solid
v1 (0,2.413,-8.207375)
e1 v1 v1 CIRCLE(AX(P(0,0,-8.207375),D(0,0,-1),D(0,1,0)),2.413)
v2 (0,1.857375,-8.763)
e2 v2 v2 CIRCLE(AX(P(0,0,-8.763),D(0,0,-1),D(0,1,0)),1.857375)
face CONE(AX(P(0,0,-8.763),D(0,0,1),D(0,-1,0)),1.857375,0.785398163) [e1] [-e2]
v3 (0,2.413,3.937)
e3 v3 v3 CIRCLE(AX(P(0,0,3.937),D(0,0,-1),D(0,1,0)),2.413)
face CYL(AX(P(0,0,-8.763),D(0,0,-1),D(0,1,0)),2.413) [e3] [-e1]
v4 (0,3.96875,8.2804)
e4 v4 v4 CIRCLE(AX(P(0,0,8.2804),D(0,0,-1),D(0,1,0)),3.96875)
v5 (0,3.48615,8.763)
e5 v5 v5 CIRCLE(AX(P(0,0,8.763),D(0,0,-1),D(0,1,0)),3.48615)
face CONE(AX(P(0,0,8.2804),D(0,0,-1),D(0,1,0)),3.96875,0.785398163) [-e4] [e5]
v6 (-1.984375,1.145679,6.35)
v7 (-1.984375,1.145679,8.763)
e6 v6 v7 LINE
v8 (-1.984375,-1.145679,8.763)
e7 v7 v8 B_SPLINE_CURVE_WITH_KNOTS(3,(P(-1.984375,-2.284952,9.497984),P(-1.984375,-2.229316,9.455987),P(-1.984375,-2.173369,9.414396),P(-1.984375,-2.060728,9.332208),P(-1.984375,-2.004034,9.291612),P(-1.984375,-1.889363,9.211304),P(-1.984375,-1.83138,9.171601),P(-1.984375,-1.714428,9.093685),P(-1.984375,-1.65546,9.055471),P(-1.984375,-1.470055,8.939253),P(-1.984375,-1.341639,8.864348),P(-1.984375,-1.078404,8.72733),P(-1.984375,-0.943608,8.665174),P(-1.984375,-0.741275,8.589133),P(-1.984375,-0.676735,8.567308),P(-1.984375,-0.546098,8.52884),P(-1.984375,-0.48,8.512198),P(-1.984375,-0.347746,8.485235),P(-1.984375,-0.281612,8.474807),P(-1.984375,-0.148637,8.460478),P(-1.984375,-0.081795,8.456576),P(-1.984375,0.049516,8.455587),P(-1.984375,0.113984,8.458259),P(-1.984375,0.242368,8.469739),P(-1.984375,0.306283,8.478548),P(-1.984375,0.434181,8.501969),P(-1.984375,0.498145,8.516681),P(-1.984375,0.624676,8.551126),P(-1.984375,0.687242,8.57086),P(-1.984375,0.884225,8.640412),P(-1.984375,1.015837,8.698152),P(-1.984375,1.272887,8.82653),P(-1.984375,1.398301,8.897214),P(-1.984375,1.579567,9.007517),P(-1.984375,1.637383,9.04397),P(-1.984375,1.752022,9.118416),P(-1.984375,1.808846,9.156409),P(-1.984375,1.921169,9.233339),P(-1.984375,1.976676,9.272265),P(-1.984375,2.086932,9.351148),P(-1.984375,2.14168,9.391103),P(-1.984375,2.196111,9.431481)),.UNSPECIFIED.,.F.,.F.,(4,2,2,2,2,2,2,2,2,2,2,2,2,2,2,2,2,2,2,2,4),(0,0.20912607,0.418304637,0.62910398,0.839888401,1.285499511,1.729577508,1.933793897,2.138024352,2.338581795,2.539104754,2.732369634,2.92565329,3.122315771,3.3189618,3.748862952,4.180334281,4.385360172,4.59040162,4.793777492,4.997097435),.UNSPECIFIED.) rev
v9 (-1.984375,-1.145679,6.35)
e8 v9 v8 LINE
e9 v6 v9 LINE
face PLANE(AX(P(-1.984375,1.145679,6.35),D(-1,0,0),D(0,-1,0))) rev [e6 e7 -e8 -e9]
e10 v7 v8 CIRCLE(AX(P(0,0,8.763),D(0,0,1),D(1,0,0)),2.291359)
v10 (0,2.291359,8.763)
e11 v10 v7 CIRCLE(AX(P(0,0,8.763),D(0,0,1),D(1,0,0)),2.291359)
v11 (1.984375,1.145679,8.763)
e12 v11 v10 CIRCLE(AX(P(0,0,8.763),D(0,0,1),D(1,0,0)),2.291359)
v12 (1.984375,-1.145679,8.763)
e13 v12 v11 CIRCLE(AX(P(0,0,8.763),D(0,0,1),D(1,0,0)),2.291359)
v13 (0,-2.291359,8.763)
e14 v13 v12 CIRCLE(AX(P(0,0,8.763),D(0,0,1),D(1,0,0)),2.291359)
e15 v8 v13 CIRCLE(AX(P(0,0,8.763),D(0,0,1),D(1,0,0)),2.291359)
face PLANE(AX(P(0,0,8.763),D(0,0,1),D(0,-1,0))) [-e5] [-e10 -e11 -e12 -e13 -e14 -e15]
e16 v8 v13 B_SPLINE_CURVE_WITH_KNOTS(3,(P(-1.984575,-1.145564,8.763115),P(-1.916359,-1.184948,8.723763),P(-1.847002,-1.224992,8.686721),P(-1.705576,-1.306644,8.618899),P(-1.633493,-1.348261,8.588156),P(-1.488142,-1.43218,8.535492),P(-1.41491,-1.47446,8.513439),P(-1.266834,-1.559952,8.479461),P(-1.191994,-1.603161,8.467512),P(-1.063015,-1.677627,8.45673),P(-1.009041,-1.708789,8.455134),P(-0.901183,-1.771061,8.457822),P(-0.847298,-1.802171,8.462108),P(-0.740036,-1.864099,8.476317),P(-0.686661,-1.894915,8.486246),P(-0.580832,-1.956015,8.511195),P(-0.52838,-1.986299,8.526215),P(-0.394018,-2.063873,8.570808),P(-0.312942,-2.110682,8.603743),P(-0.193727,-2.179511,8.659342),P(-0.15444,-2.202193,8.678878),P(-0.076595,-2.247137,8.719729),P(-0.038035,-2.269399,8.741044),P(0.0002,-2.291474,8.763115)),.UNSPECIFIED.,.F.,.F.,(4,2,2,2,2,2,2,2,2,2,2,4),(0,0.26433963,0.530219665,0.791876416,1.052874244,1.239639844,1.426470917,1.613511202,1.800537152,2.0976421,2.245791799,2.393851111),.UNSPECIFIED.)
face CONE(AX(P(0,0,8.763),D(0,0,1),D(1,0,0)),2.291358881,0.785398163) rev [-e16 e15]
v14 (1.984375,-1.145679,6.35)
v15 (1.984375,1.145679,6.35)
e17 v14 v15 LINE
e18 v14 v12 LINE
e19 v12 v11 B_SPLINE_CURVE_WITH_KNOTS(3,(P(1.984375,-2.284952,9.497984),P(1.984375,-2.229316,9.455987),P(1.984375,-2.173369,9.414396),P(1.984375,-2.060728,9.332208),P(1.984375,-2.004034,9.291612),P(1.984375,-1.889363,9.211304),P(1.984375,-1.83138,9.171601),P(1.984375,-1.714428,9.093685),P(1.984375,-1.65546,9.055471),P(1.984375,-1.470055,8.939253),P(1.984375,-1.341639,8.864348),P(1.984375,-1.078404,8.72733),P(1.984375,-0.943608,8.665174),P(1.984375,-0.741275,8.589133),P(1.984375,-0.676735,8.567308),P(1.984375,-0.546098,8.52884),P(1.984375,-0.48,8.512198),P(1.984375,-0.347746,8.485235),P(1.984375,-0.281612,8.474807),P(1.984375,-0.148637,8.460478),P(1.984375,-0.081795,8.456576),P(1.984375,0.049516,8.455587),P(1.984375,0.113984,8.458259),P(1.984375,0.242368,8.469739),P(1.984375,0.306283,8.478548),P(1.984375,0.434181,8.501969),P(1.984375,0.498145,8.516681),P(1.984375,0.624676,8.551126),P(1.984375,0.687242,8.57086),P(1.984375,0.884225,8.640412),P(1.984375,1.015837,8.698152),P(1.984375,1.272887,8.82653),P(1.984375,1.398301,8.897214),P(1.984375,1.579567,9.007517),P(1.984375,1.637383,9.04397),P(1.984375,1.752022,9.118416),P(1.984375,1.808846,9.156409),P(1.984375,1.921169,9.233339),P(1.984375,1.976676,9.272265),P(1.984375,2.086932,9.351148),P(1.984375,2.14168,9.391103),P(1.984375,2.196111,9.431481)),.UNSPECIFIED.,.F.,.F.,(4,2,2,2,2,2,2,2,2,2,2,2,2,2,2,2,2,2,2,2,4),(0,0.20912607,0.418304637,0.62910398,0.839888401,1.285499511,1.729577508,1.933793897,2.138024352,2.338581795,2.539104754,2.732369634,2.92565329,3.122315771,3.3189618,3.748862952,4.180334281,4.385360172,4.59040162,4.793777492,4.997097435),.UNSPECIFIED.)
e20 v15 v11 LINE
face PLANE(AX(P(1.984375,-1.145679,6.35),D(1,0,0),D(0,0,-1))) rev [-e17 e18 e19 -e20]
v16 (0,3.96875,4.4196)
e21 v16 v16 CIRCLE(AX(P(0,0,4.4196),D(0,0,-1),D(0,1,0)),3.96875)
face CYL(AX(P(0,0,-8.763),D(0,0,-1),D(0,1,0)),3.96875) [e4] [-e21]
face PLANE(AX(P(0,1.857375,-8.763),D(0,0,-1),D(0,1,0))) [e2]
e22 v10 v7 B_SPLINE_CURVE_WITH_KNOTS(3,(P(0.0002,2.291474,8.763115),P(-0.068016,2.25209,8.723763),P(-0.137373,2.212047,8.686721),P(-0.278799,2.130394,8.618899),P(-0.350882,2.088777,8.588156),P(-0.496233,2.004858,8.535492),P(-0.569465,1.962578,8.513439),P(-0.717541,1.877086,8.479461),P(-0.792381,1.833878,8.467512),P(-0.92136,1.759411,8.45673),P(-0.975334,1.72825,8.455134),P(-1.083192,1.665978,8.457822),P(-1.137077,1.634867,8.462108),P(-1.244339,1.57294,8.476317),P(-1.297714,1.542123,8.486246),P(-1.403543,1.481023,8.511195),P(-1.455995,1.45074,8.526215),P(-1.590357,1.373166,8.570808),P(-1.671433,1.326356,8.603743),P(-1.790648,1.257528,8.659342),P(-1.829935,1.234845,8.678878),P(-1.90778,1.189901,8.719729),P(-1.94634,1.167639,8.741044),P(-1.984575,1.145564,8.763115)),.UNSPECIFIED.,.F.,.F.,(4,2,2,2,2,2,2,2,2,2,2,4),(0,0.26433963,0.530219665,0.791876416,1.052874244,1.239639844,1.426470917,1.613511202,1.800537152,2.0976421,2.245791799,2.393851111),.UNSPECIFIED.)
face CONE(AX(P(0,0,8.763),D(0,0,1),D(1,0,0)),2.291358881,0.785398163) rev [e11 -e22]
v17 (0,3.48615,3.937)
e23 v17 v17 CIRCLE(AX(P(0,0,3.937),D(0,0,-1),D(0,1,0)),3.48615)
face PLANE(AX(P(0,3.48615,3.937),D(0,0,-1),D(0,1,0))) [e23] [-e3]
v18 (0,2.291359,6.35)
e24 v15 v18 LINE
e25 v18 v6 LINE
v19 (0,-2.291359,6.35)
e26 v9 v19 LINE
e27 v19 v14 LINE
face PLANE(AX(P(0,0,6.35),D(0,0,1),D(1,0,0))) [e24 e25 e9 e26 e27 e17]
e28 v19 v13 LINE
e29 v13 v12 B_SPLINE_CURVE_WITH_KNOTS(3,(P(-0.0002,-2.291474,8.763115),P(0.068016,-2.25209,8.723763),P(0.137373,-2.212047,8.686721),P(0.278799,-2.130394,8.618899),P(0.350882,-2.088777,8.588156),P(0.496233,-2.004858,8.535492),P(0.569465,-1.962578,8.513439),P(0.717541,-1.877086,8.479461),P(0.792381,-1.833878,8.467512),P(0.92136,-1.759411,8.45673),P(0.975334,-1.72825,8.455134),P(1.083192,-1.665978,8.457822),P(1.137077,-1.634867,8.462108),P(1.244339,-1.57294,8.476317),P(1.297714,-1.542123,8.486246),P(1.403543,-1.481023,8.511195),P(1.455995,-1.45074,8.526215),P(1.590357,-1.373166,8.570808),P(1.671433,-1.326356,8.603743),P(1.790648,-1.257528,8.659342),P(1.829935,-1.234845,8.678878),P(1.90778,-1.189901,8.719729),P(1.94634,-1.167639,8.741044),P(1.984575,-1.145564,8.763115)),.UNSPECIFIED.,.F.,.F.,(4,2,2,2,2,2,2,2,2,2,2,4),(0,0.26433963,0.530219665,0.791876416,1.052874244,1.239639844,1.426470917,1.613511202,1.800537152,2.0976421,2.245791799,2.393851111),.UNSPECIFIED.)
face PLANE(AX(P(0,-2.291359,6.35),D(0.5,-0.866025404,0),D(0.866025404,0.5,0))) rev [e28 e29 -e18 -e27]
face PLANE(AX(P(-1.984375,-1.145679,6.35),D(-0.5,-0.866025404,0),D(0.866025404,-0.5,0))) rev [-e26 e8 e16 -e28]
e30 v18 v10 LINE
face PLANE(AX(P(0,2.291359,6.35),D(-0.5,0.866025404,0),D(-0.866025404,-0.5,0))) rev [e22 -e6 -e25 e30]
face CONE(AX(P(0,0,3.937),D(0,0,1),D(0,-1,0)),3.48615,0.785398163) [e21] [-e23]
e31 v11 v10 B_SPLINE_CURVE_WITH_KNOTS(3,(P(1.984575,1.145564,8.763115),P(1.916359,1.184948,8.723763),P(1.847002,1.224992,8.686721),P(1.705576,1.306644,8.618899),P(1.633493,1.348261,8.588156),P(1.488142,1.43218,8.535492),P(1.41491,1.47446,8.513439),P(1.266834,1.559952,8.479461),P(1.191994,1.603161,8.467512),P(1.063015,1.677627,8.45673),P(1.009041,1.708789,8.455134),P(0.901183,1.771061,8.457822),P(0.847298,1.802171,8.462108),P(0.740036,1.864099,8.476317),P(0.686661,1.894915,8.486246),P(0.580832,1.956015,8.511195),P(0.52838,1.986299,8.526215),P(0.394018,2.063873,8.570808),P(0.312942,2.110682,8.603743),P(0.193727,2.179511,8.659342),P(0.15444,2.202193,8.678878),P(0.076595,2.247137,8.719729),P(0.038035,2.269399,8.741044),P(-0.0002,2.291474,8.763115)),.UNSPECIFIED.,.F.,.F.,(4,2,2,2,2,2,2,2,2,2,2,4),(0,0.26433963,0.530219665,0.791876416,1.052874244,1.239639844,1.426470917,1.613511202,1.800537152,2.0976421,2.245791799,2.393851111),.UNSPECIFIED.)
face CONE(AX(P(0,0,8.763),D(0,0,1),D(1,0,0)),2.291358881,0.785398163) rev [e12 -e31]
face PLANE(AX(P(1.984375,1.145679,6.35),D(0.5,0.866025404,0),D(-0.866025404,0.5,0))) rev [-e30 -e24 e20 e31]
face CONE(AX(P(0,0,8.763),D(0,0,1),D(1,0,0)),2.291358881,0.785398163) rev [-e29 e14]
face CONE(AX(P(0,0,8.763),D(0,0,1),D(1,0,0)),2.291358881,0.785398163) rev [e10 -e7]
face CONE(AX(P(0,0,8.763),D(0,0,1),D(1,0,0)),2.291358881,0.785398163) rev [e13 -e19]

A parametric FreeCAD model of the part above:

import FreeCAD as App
import Part
import Sketcher
Q = App.Units.Quantity


def add_polygon(sketch, points):
    """Adds a closed chain of lines whose ends are joined by coincident constraints."""
    first, n = sketch.GeometryCount, len(points)
    for a, b in zip(points, points[1:] + points[:1]):
        sketch.addGeometry(Part.LineSegment(App.Vector(*a, 0), App.Vector(*b, 0)), False)
    for i in range(n):
        sketch.addConstraint(Sketcher.Constraint("Coincident", first + i, 2, first + (i + 1) % n, 1))

doc = App.newDocument("Part")
body = doc.addObject("PartDesign::Body", "Body")

# Sketch on YZ plane
sketch1 = body.newObject("Sketcher::SketchObject", "Sketch")
sketch1.AttachmentSupport = (doc.getObject("YZ_Plane"), [""])
sketch1.MapMode = "FlatFace"
add_polygon(sketch1, [(0, 8.763), (0, -8.763), (1.857375, -8.763), (2.413, -8.207375), (2.413, 3.937), (3.48615, 3.937), (3.96875, 4.4196), (3.96875, 8.2804), (3.48615, 8.763)])  # lines 0-8
sketch1.addConstraint(Sketcher.Constraint("Vertical", 0))
sketch1.addConstraint(Sketcher.Constraint("Horizontal", 1))
sketch1.addConstraint(Sketcher.Constraint("Vertical", 3))
sketch1.addConstraint(Sketcher.Constraint("Horizontal", 4))
sketch1.addConstraint(Sketcher.Constraint("Vertical", 6))
sketch1.addConstraint(Sketcher.Constraint("Horizontal", 8))
sketch1.addConstraint(Sketcher.Constraint("Symmetric", 0, 2, 8, 2, -1, 1))
sketch1.addConstraint(Sketcher.Constraint("Parallel", 2, 5))
sketch1.addConstraint(Sketcher.Constraint("Perpendicular", 5, 7))
sketch1.addConstraint(Sketcher.Constraint("Vertical", 4, 2, 7, 2))
sketch1.addConstraint(Sketcher.Constraint("Equal", 5, 7))
sketch1.addConstraint(Sketcher.Constraint("DistanceY", 0, 2, 0, 1, Q("0.69 in")))
sketch1.addConstraint(Sketcher.Constraint("DistanceY", 1, 2, 3, 2, Q("0.5 in")))
sketch1.addConstraint(Sketcher.Constraint("DistanceY", 6, 1, 6, 2, Q("0.152 in")))
sketch1.addConstraint(Sketcher.Constraint("DistanceX", -1, 1, 2, 2, Q("0.095 in")))
sketch1.addConstraint(Sketcher.Constraint("DistanceX", -1, 1, 5, 2, Q("0.15625 in")))
sketch1.addConstraint(Sketcher.Constraint("DistanceX", 1, 1, 1, 2, 1.857375))
revolution = body.newObject("PartDesign::Revolution", "Revolution")
revolution.Profile = sketch1
revolution.ReferenceAxis = (sketch1, ["V_Axis"])
revolution.Angle = 360

# Sketch on XY plane
sketch2 = body.newObject("Sketcher::SketchObject", "Sketch001")
sketch2.AttachmentSupport = (doc.getObject("XY_Plane"), [""])
sketch2.MapMode = "FlatFace"
sketch2.AttachmentOffset = App.Placement(App.Vector(0, 0, 0.345 * 25.4), App.Rotation())
add_polygon(sketch2, [(0, -2.291359), (1.984375, -1.145679), (1.984375, 1.145679), (0, 2.291359), (-1.984375, 1.145679), (-1.984375, -1.145679)])  # lines 0-5
sketch2.addConstraint(Sketcher.Constraint("Vertical", 1))
sketch2.addConstraint(Sketcher.Constraint("Vertical", 4))
sketch2.addConstraint(Sketcher.Constraint("Symmetric", 0, 2, 3, 2, -1, 1))
sketch2.addConstraint(Sketcher.Constraint("Symmetric", 2, 2, 5, 2, -1, 1))
sketch2.addConstraint(Sketcher.Constraint("PointOnObject", 2, 2, -2))
sketch2.addConstraint(Sketcher.Constraint("Parallel", 2, 5))
sketch2.addConstraint(Sketcher.Constraint("Horizontal", 1, 2, 3, 2))
sketch2.addConstraint(Sketcher.Constraint("Angle", 0, Q("30 deg")))
sketch2.addConstraint(Sketcher.Constraint("DistanceX", -1, 1, 0, 2, Q("0.078125 in")))
sketch2.addConstraint(Sketcher.Constraint("DistanceY", 1, 1, 1, 2, 2.291359))
pocket1 = body.newObject("PartDesign::Pocket", "Pocket")
pocket1.Profile = sketch2
pocket1.Length = Q("0.095 in")

# Sketch on YZ plane
sketch3 = body.newObject("Sketcher::SketchObject", "Sketch002")
sketch3.AttachmentSupport = (doc.getObject("YZ_Plane"), [""])
sketch3.MapMode = "FlatFace"
add_polygon(sketch3, [(0, 8.763), (-2.291359, 8.763), (0, 6.471641)])  # lines 0-2
sketch3.addConstraint(Sketcher.Constraint("Horizontal", 0))
sketch3.addConstraint(Sketcher.Constraint("Vertical", 2))
sketch3.addConstraint(Sketcher.Constraint("PointOnObject", 1, 2, -2))
sketch3.addConstraint(Sketcher.Constraint("Equal", 0, 2))
sketch3.addConstraint(Sketcher.Constraint("DistanceY", -1, 1, 0, 2, Q("0.345 in")))
sketch3.addConstraint(Sketcher.Constraint("DistanceX", 0, 2, 0, 1, 2.291359))
groove = body.newObject("PartDesign::Groove", "Groove")
groove.Profile = sketch3
groove.ReferenceAxis = (sketch3, ["V_Axis"])
groove.Angle = 360

doc.recompute()
